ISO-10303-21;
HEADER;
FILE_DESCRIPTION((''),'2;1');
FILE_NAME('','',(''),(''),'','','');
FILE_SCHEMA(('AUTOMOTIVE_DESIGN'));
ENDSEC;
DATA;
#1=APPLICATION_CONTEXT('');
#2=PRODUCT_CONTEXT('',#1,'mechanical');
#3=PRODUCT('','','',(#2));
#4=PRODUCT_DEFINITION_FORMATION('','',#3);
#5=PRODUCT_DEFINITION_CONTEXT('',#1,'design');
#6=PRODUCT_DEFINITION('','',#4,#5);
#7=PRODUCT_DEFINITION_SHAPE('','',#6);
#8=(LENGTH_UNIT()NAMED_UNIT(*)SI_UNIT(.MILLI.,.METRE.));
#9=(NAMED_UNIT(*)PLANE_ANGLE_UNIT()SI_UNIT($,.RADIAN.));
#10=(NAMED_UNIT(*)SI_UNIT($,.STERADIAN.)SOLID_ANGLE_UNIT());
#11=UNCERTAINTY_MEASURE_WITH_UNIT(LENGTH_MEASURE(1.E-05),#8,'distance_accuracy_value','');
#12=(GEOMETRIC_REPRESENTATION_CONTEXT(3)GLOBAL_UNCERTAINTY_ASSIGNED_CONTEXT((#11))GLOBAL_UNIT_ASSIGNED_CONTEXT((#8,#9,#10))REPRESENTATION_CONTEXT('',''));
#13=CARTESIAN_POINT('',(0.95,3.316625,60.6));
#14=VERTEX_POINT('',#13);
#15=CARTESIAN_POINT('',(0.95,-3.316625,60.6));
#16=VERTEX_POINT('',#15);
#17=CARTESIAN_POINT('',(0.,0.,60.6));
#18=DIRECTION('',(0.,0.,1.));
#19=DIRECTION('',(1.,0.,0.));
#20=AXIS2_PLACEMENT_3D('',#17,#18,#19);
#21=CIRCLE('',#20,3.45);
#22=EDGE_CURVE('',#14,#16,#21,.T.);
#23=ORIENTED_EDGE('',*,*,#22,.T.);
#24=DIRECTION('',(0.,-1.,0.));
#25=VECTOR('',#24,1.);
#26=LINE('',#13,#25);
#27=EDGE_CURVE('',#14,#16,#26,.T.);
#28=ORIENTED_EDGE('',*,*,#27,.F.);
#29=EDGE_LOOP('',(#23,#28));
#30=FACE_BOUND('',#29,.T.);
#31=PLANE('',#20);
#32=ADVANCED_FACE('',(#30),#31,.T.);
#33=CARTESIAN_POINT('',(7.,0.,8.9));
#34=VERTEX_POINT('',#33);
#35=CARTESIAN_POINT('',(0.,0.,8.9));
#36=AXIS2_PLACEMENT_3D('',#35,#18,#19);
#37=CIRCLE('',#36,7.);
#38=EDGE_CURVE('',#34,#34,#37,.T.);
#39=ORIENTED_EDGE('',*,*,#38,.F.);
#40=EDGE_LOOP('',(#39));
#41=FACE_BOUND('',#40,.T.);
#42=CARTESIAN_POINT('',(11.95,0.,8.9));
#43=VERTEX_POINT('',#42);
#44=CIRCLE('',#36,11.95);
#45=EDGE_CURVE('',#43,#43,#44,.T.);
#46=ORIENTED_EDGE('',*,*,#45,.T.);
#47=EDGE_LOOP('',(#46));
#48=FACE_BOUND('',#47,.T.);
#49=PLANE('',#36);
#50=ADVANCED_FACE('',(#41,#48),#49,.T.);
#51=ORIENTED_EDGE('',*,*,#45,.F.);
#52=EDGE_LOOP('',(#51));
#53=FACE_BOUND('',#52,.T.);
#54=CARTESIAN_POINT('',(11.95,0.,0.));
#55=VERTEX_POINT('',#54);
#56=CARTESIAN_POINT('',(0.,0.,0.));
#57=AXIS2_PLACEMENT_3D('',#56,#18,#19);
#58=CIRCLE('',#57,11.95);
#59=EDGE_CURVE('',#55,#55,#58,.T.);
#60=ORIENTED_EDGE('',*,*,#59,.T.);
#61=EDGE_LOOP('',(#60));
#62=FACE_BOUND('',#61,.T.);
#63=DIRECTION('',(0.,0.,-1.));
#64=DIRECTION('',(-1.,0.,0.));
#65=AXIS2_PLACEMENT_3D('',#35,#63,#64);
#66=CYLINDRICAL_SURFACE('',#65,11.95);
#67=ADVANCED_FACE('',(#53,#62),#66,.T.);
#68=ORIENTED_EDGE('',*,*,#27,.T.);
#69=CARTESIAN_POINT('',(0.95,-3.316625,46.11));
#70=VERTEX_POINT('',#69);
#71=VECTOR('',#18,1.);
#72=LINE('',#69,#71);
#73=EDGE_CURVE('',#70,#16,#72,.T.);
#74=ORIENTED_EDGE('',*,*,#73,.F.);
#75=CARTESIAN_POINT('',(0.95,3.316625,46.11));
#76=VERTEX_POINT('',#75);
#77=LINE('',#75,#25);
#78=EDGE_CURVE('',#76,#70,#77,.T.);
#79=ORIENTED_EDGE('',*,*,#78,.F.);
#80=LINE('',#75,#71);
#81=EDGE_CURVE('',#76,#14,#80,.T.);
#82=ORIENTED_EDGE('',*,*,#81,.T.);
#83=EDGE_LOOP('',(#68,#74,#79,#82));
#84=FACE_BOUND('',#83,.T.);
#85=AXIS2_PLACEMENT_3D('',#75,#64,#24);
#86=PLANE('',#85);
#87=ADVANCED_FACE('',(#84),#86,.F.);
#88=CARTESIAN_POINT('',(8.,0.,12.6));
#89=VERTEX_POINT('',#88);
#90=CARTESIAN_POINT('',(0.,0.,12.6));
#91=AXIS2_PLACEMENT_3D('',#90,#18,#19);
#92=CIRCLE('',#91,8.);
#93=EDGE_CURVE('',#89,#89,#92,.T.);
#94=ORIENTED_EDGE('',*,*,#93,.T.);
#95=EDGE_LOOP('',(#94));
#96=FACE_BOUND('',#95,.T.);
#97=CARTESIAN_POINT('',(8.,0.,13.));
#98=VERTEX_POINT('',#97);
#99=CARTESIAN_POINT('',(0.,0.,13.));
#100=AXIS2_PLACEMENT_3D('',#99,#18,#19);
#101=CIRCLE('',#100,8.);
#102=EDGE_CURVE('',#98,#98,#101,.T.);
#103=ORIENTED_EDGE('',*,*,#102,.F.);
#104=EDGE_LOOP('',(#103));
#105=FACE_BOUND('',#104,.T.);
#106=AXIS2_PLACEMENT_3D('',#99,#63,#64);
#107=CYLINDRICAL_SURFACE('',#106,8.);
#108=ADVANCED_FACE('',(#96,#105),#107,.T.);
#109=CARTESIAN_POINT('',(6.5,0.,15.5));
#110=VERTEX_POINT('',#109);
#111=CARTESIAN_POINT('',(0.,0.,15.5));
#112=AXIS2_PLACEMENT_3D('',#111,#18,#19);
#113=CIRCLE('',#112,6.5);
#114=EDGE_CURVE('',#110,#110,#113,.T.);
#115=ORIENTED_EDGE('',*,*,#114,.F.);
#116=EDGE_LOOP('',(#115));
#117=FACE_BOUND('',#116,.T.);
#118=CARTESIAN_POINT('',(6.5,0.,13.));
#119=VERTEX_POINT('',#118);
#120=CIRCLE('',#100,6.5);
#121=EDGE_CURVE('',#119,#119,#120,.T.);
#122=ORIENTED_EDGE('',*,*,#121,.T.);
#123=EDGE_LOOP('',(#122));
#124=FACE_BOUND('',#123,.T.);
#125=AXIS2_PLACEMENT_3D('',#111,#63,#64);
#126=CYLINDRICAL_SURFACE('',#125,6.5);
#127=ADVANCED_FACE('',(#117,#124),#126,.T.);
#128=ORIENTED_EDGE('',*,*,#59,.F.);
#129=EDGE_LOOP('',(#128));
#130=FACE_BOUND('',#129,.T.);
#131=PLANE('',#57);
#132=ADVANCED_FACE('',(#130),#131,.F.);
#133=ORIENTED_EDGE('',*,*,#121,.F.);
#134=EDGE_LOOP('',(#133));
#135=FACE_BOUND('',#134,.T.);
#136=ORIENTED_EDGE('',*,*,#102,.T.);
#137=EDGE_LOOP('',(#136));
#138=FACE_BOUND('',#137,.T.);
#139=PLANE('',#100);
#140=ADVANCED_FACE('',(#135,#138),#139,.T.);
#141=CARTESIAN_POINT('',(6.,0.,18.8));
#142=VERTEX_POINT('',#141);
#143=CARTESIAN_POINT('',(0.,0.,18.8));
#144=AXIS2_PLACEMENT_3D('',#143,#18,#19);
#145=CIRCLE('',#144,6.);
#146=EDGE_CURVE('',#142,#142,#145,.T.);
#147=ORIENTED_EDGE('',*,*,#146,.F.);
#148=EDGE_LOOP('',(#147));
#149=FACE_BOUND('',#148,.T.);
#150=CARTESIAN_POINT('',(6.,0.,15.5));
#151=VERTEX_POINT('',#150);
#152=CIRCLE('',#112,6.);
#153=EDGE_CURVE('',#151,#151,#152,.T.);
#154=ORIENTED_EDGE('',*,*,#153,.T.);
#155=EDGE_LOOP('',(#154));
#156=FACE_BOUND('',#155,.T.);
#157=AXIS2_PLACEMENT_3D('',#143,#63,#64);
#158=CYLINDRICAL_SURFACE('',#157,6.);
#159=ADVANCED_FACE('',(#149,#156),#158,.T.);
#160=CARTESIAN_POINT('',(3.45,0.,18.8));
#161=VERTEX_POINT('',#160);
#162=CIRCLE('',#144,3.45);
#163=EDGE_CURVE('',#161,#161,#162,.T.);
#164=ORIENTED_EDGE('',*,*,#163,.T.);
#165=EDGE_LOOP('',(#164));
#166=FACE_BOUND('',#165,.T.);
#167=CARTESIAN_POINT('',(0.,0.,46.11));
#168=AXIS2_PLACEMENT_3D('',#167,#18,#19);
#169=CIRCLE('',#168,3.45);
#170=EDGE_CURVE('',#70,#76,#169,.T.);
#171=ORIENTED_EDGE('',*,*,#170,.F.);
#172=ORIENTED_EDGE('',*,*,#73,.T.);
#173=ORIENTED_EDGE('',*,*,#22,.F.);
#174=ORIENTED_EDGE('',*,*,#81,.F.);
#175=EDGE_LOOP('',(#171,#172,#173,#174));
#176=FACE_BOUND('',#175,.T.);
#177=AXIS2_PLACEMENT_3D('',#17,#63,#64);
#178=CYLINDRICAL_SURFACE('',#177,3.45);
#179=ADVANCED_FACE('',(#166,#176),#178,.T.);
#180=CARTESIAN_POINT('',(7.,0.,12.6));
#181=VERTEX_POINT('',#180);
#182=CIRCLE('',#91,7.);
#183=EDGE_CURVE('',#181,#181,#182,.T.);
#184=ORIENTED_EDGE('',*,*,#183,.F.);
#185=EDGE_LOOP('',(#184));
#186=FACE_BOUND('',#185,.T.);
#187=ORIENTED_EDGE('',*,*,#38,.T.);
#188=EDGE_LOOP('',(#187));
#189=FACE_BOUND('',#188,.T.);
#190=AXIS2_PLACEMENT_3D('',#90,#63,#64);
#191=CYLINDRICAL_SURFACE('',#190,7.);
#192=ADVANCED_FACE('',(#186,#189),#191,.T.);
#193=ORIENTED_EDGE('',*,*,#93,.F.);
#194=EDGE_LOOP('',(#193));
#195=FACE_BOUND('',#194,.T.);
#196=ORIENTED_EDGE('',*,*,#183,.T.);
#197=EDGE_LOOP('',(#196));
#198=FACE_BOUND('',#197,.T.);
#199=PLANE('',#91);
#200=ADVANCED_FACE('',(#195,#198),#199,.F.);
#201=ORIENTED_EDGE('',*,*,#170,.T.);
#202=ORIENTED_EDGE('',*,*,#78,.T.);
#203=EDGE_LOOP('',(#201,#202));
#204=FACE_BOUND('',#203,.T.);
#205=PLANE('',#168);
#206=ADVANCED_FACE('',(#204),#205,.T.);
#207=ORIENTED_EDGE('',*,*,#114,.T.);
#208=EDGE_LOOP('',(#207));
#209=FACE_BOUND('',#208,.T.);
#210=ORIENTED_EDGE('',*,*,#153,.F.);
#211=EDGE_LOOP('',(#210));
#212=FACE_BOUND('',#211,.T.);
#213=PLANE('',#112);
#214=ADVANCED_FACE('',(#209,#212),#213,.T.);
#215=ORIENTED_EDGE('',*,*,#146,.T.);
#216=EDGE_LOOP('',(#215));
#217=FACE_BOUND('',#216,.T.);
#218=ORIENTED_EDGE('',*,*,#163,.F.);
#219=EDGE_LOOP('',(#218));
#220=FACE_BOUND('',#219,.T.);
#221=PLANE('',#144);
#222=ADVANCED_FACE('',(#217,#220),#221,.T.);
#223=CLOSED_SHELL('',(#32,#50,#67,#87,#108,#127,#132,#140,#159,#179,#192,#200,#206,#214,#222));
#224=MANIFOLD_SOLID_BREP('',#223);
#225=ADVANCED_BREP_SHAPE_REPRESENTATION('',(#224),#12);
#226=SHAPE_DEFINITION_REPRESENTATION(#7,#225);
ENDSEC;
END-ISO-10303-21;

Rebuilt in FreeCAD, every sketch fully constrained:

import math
import FreeCAD as App
import Part
import Sketcher

V = App.Vector

doc = App.newDocument("Part")
body = doc.addObject("PartDesign::Body", "Body")

sketch1 = body.newObject("Sketcher::SketchObject", "Sketch")
sketch1.AttachmentSupport = (doc.getObject("XY_Plane"), [""])
sketch1.MapMode = "FlatFace"
sketch1.addGeometry(Part.Circle(V(0, 0, 0), V(0, 0, 1), 12), False)
sketch1.addConstraint(Sketcher.Constraint("Coincident", 0, 3, -1, 1))
sketch1.addConstraint(Sketcher.Constraint("Diameter", 0, 23.9))
pad1 = body.newObject("PartDesign::Pad", "Pad")
pad1.Profile = sketch1
pad1.Length = 8.9

sketch2 = body.newObject("Sketcher::SketchObject", "Sketch001")
sketch2.AttachmentSupport = (doc.getObject("XY_Plane"), [""])
sketch2.MapMode = "FlatFace"
sketch2.AttachmentOffset = App.Placement(V(0, 0, 8.9), App.Rotation())
sketch2.addGeometry(Part.Circle(V(0, 0, 0), V(0, 0, 1), 7), False)
sketch2.addConstraint(Sketcher.Constraint("Coincident", 0, 3, -1, 1))
sketch2.addConstraint(Sketcher.Constraint("Diameter", 0, 14.0))
pad2 = body.newObject("PartDesign::Pad", "Pad001")
pad2.Profile = sketch2
pad2.Length = 3.7

sketch3 = body.newObject("Sketcher::SketchObject", "Sketch002")
sketch3.AttachmentSupport = (doc.getObject("XY_Plane"), [""])
sketch3.MapMode = "FlatFace"
sketch3.AttachmentOffset = App.Placement(V(0, 0, 12.6), App.Rotation())
sketch3.addGeometry(Part.Circle(V(0, 0, 0), V(0, 0, 1), 8), False)
sketch3.addConstraint(Sketcher.Constraint("Coincident", 0, 3, -1, 1))
sketch3.addConstraint(Sketcher.Constraint("Diameter", 0, 16.0))
pad3 = body.newObject("PartDesign::Pad", "Pad002")
pad3.Profile = sketch3
pad3.Length = 0.4

sketch4 = body.newObject("Sketcher::SketchObject", "Sketch003")
sketch4.AttachmentSupport = (doc.getObject("XY_Plane"), [""])
sketch4.MapMode = "FlatFace"
sketch4.AttachmentOffset = App.Placement(V(0, 0, 13), App.Rotation())
sketch4.addGeometry(Part.Circle(V(0, 0, 0), V(0, 0, 1), 6), False)
sketch4.addConstraint(Sketcher.Constraint("Coincident", 0, 3, -1, 1))
sketch4.addConstraint(Sketcher.Constraint("Diameter", 0, 13.0))
pad4 = body.newObject("PartDesign::Pad", "Pad003")
pad4.Profile = sketch4
pad4.Length = 2.5

sketch5 = body.newObject("Sketcher::SketchObject", "Sketch004")
sketch5.AttachmentSupport = (doc.getObject("XY_Plane"), [""])
sketch5.MapMode = "FlatFace"
sketch5.AttachmentOffset = App.Placement(V(0, 0, 15.5), App.Rotation())
sketch5.addGeometry(Part.Circle(V(0, 0, 0), V(0, 0, 1), 6), False)
sketch5.addConstraint(Sketcher.Constraint("Coincident", 0, 3, -1, 1))
sketch5.addConstraint(Sketcher.Constraint("Diameter", 0, 12.0))
pad5 = body.newObject("PartDesign::Pad", "Pad004")
pad5.Profile = sketch5
pad5.Length = 3.3

sketch6 = body.newObject("Sketcher::SketchObject", "Sketch005")
sketch6.AttachmentSupport = (doc.getObject("XY_Plane"), [""])
sketch6.MapMode = "FlatFace"
sketch6.AttachmentOffset = App.Placement(V(0, 0, 18.8), App.Rotation())
sketch6.addGeometry(Part.Circle(V(0, 0, 0), V(0, 0, 1), 3.5), False)
sketch6.addConstraint(Sketcher.Constraint("Coincident", 0, 3, -1, 1))
sketch6.addConstraint(Sketcher.Constraint("Diameter", 0, 6.9))
pad6 = body.newObject("PartDesign::Pad", "Pad005")
pad6.Profile = sketch6
pad6.Length = 41.8

sketch7 = body.newObject("Sketcher::SketchObject", "Sketch006")
sketch7.AttachmentSupport = (doc.getObject("XY_Plane"), [""])
sketch7.MapMode = "FlatFace"
sketch7.AttachmentOffset = App.Placement(V(0, 0, 46.11), App.Rotation())
sketch7.addGeometry(Part.LineSegment(V(0.9, 3.3, 0), V(0.9, -3.3, 0)), False)
sketch7.addGeometry(Part.ArcOfCircle(Part.Circle(V(0, 0, 0), V(0, 0, 1), 3.5), math.radians(-74), math.radians(74)), False)
sketch7.addConstraint(Sketcher.Constraint("Coincident", 0, 1, 1, 2))
sketch7.addConstraint(Sketcher.Constraint("Coincident", 1, 1, 0, 2))
sketch7.addConstraint(Sketcher.Constraint("Vertical", 0))
sketch7.addConstraint(Sketcher.Constraint("Coincident", 1, 3, -1, 1))
sketch7.addConstraint(Sketcher.Constraint("Radius", 1, 3.45))
sketch7.addConstraint(Sketcher.Constraint("DistanceX", -1, 1, 0, 1, 0.95))
pocket1 = body.newObject("PartDesign::Pocket", "Pocket")
pocket1.Profile = sketch7
pocket1.Length = 14.49
pocket1.Reversed = True

doc.recompute()
